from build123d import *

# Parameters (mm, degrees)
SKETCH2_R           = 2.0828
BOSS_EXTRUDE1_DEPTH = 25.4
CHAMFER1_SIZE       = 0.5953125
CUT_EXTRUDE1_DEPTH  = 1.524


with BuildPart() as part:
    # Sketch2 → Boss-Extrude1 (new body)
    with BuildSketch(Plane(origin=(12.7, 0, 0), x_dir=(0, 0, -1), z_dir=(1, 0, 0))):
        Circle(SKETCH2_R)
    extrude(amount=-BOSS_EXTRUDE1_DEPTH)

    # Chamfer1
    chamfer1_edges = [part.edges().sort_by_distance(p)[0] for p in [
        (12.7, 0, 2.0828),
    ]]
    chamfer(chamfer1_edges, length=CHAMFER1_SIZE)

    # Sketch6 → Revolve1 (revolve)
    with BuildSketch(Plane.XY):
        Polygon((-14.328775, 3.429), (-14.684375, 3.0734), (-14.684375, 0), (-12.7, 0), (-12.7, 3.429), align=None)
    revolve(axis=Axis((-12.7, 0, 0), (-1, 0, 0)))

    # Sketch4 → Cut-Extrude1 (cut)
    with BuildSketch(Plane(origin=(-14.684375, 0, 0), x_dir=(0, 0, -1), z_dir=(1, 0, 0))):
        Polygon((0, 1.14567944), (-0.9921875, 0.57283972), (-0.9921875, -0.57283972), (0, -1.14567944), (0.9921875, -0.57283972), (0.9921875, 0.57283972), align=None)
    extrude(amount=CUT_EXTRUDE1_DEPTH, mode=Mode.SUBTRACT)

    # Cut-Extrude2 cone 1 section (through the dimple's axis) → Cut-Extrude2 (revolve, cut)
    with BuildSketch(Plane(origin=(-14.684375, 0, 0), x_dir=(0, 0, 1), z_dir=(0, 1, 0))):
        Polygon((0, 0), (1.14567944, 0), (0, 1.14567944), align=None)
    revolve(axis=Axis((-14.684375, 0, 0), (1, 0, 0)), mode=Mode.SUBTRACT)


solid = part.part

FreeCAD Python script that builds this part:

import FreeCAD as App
import Part
import Sketcher

V = App.Vector
Q = App.Units.Quantity


def edges_at(feature, points):
    """Names of the edges that pass closest to the given points."""
    edges = feature.Shape.Edges
    near = lambda p: min(range(len(edges)), key=lambda i: edges[i].distToShape(Part.Vertex(*p))[0])
    return sorted({f"Edge{near(p) + 1}" for p in points})

doc = App.newDocument("Part")
body = doc.addObject("PartDesign::Body", "Body")

# Sketch on YZ plane
sketch1 = body.newObject("Sketcher::SketchObject", "Sketch")
sketch1.AttachmentSupport = (doc.getObject("YZ_Plane"), [""])
sketch1.MapMode = "FlatFace"
sketch1.AttachmentOffset = App.Placement(V(0, 0, 0.5 * 25.4), App.Rotation())
sketch1.addGeometry(Part.Circle(V(0, 0, 0), V(0, 0, 1), 2.1), False)
sketch1.addConstraint([
    Sketcher.Constraint("Coincident", 0, 3, -1, 1),
    Sketcher.Constraint("Diameter", 0, Q("0.164 in")),
])
pad1 = body.newObject("PartDesign::Pad", "Pad")
pad1.Profile = sketch1
pad1.Length = Q("1 in")
pad1.Reversed = True
doc.recompute()

chamfer = body.newObject("PartDesign::Chamfer", "Chamfer")
chamfer.Base = (pad1, edges_at(pad1, [(12.7, 0, 2.083)]))
chamfer.Size = 0.595313

# Sketch on XY plane
sketch2 = body.newObject("Sketcher::SketchObject", "Sketch001")
sketch2.AttachmentSupport = (doc.getObject("XY_Plane"), [""])
sketch2.MapMode = "FlatFace"
sketch2.addGeometry([
    Part.LineSegment(V(-14.3, 3.4, 0), V(-14.7, 3.1, 0)),  # 0
    Part.LineSegment(V(-14.7, 3.1, 0), V(-14.7, 0, 0)),  # 1
    Part.LineSegment(V(-14.7, 0, 0), V(-12.7, 0, 0)),  # 2
    Part.LineSegment(V(-12.7, 0, 0), V(-12.7, 3.4, 0)),  # 3
    Part.LineSegment(V(-12.7, 3.4, 0), V(-14.3, 3.4, 0)),  # 4
], False)
sketch2.addConstraint([
    Sketcher.Constraint("Coincident", 0, 2, 1, 1),
    Sketcher.Constraint("Coincident", 1, 2, 2, 1),
    Sketcher.Constraint("Coincident", 2, 2, 3, 1),
    Sketcher.Constraint("Coincident", 3, 2, 4, 1),
    Sketcher.Constraint("Coincident", 4, 2, 0, 1),
    Sketcher.Constraint("Vertical", 1),
    Sketcher.Constraint("Horizontal", 2),
    Sketcher.Constraint("Vertical", 3),
    Sketcher.Constraint("Horizontal", 4),
    Sketcher.Constraint("PointOnObject", 1, 2, -1),
    Sketcher.Constraint("Angle", 0, Q("-135 deg")),
    Sketcher.Constraint("DistanceX", 2, 2, -1, 1, Q("0.5 in")),
    Sketcher.Constraint("DistanceX", 2, 1, 2, 2, Q("0.078125 in")),
    Sketcher.Constraint("DistanceY", 1, 2, 1, 1, Q("0.121 in")),
    Sketcher.Constraint("DistanceY", 3, 1, 3, 2, Q("0.135 in")),
])
revolution = body.newObject("PartDesign::Revolution", "Revolution")
revolution.Profile = sketch2
revolution.ReferenceAxis = (sketch2, ["H_Axis"])
revolution.Angle = 360

# Sketch on YZ plane
sketch3 = body.newObject("Sketcher::SketchObject", "Sketch002")
sketch3.AttachmentSupport = (doc.getObject("YZ_Plane"), [""])
sketch3.MapMode = "FlatFace"
sketch3.AttachmentOffset = App.Placement(V(0, 0, -0.578125 * 25.4), App.Rotation())
sketch3.addGeometry([
    Part.LineSegment(V(1.1, 0, 0), V(0.6, 1, 0)),  # 0
    Part.LineSegment(V(0.6, 1, 0), V(-0.6, 1, 0)),  # 1
    Part.LineSegment(V(-0.6, 1, 0), V(-1.1, 0, 0)),  # 2
    Part.LineSegment(V(-1.1, 0, 0), V(-0.6, -1, 0)),  # 3
    Part.LineSegment(V(-0.6, -1, 0), V(0.6, -1, 0)),  # 4
    Part.LineSegment(V(0.6, -1, 0), V(1.1, 0, 0)),  # 5
], False)
sketch3.addConstraint([
    Sketcher.Constraint("Coincident", 0, 2, 1, 1),
    Sketcher.Constraint("Coincident", 1, 2, 2, 1),
    Sketcher.Constraint("Coincident", 2, 2, 3, 1),
    Sketcher.Constraint("Coincident", 3, 2, 4, 1),
    Sketcher.Constraint("Coincident", 4, 2, 5, 1),
    Sketcher.Constraint("Coincident", 5, 2, 0, 1),
    Sketcher.Constraint("Horizontal", 1),
    Sketcher.Constraint("Horizontal", 4),
    Sketcher.Constraint("Symmetric", 0, 2, 3, 2, -1, 1),
    Sketcher.Constraint("Symmetric", 2, 2, 5, 2, -1, 1),
    Sketcher.Constraint("PointOnObject", 2, 2, -1),
    Sketcher.Constraint("Parallel", 2, 5),
    Sketcher.Constraint("Vertical", 1, 2, 3, 2),
    Sketcher.Constraint("Angle", 0, Q("120 deg")),
    Sketcher.Constraint("DistanceY", 3, 2, 1, 2, Q("0.078125 in")),
    Sketcher.Constraint("DistanceX", 1, 2, 1, 1, 1.145679),
])
pocket1 = body.newObject("PartDesign::Pocket", "Pocket")
pocket1.Profile = sketch3
pocket1.Length = Q("0.06 in")
pocket1.Reversed = True

# Sketch on XZ plane
sketch4 = body.newObject("Sketcher::SketchObject", "Sketch003")
sketch4.AttachmentSupport = (doc.getObject("XZ_Plane"), [""])
sketch4.MapMode = "FlatFace"
sketch4.addGeometry([
    Part.LineSegment(V(-14.7, 0, 0), V(-14.7, 1.1, 0)),
    Part.LineSegment(V(-14.7, 1.1, 0), V(-13.5, 0, 0)),
    Part.LineSegment(V(-13.5, 0, 0), V(-14.7, 0, 0)),
], False)
sketch4.addConstraint([
    Sketcher.Constraint("Coincident", 0, 2, 1, 1),
    Sketcher.Constraint("Coincident", 1, 2, 2, 1),
    Sketcher.Constraint("Coincident", 2, 2, 0, 1),
    Sketcher.Constraint("Vertical", 0),
    Sketcher.Constraint("Horizontal", 2),
    Sketcher.Constraint("PointOnObject", 1, 2, -1),
    Sketcher.Constraint("Equal", 2, 0),
    Sketcher.Constraint("DistanceX", 0, 2, -1, 1, Q("0.578125 in")),
    Sketcher.Constraint("DistanceX", 2, 2, 2, 1, 1.145679),
])
groove = body.newObject("PartDesign::Groove", "Groove")
groove.Profile = sketch4
groove.ReferenceAxis = (sketch4, ["H_Axis"])
groove.Angle = 360

doc.recompute()
